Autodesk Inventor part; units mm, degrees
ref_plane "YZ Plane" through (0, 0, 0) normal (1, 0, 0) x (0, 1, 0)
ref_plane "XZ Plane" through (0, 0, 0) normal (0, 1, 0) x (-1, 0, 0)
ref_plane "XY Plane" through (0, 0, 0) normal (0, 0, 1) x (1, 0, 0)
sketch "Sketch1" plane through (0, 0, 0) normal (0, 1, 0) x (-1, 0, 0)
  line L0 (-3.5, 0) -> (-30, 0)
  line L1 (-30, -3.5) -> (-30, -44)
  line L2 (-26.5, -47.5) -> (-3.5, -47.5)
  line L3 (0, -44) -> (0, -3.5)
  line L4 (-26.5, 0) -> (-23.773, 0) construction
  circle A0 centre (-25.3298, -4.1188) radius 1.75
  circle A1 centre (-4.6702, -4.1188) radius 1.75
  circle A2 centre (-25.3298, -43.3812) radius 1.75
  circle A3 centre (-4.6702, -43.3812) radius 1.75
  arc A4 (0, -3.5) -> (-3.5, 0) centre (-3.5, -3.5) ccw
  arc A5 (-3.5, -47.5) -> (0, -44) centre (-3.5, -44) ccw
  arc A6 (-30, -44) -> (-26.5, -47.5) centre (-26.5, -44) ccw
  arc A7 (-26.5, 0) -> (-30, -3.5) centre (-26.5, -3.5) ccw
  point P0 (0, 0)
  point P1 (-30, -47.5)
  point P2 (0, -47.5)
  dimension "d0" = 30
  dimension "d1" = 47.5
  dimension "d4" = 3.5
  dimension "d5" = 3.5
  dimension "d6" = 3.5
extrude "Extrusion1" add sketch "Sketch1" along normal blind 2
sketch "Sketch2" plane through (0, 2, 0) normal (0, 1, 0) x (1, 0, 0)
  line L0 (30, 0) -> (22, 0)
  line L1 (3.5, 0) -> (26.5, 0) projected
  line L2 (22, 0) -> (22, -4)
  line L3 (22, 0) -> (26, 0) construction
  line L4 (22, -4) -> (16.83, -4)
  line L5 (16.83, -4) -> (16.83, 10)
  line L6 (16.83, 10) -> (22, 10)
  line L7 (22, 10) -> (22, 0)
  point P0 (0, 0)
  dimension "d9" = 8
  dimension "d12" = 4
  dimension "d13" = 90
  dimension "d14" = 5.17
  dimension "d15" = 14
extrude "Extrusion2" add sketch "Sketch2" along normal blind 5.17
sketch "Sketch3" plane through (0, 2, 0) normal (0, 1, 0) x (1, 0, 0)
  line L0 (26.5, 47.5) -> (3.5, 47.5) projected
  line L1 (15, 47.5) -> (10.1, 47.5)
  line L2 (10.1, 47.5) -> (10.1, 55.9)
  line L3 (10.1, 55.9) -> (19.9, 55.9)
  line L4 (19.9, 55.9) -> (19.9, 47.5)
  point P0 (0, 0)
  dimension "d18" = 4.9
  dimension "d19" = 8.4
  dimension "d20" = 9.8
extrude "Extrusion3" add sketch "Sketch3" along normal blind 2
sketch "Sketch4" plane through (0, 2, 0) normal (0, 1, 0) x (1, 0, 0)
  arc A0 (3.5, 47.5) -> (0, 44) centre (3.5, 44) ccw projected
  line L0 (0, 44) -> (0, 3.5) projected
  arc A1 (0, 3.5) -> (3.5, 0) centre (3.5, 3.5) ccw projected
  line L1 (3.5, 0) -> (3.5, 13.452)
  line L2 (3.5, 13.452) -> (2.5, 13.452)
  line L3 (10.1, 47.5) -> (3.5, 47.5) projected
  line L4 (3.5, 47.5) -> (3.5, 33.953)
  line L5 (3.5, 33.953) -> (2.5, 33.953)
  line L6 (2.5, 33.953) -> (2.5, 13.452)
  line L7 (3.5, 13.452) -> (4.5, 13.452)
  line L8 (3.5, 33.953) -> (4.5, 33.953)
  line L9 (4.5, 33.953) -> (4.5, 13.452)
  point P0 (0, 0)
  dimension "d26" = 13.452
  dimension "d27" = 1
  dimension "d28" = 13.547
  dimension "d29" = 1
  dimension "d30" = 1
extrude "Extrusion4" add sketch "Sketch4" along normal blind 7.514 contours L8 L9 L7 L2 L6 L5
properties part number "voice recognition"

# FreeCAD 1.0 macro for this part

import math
import FreeCAD as App
import Part
import Sketcher

V = App.Vector

doc = App.newDocument("Part")
body = doc.addObject("PartDesign::Body", "Body")
body.AllowCompound = True

# Sketch on XZ plane
sketch1 = body.newObject("Sketcher::SketchObject", "Sketch")
sketch1.AttachmentSupport = (doc.getObject("XZ_Plane"), [""])
sketch1.MapMode = "FlatFace"
sketch1.addGeometry([
    Part.ArcOfCircle(Part.Circle(V(3.5, -3.5, 0), V(0, 0, 1), 3.5), math.radians(90), math.radians(180)),  # 0
    Part.LineSegment(V(3.5, 0, 0), V(26.5, 0, 0)),  # 1
    Part.ArcOfCircle(Part.Circle(V(26.5, -3.5, 0), V(0, 0, 1), 3.5), math.radians(0), math.radians(90)),  # 2
    Part.LineSegment(V(30, -3.5, 0), V(30, -44, 0)),  # 3
    Part.ArcOfCircle(Part.Circle(V(26.5, -44, 0), V(0, 0, 1), 3.5), math.radians(-90), math.radians(0)),  # 4
    Part.LineSegment(V(26.5, -47.5, 0), V(3.5, -47.5, 0)),  # 5
    Part.ArcOfCircle(Part.Circle(V(3.5, -44, 0), V(0, 0, 1), 3.5), math.radians(180), math.radians(270)),  # 6
    Part.LineSegment(V(0, -44, 0), V(0, -3.5, 0)),  # 7
    Part.Circle(V(25.3298, -43.3812, 0), V(0, 0, 1), 1.75),  # 8
    Part.Circle(V(4.6702, -43.3812, 0), V(0, 0, 1), 1.75),  # 9
    Part.Circle(V(25.3298, -4.1188, 0), V(0, 0, 1), 1.75),  # 10
    Part.Circle(V(4.6702, -4.1188, 0), V(0, 0, 1), 1.75),  # 11
], False)
sketch1.addConstraint([
    Sketcher.Constraint("Tangent", 0, 1, 1, 1),
    Sketcher.Constraint("Tangent", 1, 2, 2, 2),
    Sketcher.Constraint("Tangent", 2, 1, 3, 1),
    Sketcher.Constraint("Tangent", 3, 2, 4, 2),
    Sketcher.Constraint("Tangent", 4, 1, 5, 1),
    Sketcher.Constraint("Tangent", 5, 2, 6, 2),
    Sketcher.Constraint("Tangent", 6, 1, 7, 1),
    Sketcher.Constraint("Tangent", 7, 2, 0, 2),
    Sketcher.Constraint("Horizontal", 1),
    Sketcher.Constraint("Vertical", 3),
    Sketcher.Constraint("Horizontal", 5),
    Sketcher.Constraint("Vertical", 7),
    Sketcher.Constraint("Equal", 0, 2),
    Sketcher.Constraint("Equal", 2, 4),
    Sketcher.Constraint("Equal", 4, 6),
    Sketcher.Constraint("Equal", 8, 9),
    Sketcher.Constraint("Equal", 9, 10),
    Sketcher.Constraint("Equal", 10, 11),
    Sketcher.Constraint("PointOnObject", 0, 1, -1),
    Sketcher.Constraint("PointOnObject", 6, 1, -2),
    Sketcher.Constraint("Horizontal", 8, 3, 9, 3),
    Sketcher.Constraint("Horizontal", 10, 3, 11, 3),
    Sketcher.Constraint("Vertical", 8, 3, 10, 3),
    Sketcher.Constraint("Vertical", 9, 3, 11, 3),
    Sketcher.Constraint("Diameter", 8, 3.5),
    Sketcher.Constraint("Radius", 0, 3.5),
    Sketcher.Constraint("DistanceX", -1, 1, 2, 1, 30.0),
    Sketcher.Constraint("DistanceY", 4, 1, -1, 1, 47.5),
    Sketcher.Constraint("DistanceX", -1, 1, 8, 3, 25.3298),
    Sketcher.Constraint("DistanceY", 8, 3, -1, 1, 43.3812),
    Sketcher.Constraint("DistanceX", -1, 1, 9, 3, 4.6702),
    Sketcher.Constraint("DistanceY", 10, 3, -1, 1, 4.1188),
])
pad1 = body.newObject("PartDesign::Pad", "Pad")
pad1.Profile = sketch1
pad1.Length = 2
pad1.Reversed = True

# Sketch on XZ plane
sketch2 = body.newObject("Sketcher::SketchObject", "Sketch001")
sketch2.AttachmentSupport = (doc.getObject("XZ_Plane"), [""])
sketch2.MapMode = "FlatFace"
sketch2.AttachmentOffset = App.Placement(V(0, 0, -2), App.Rotation())
sketch2.addGeometry([
    Part.LineSegment(V(16.83, -10, 0), V(16.83, 4, 0)),
    Part.LineSegment(V(16.83, 4, 0), V(22, 4, 0)),
    Part.LineSegment(V(22, 4, 0), V(22, -10, 0)),
    Part.LineSegment(V(22, -10, 0), V(16.83, -10, 0)),
], False)
sketch2.addConstraint([
    Sketcher.Constraint("Coincident", 0, 2, 1, 1),
    Sketcher.Constraint("Coincident", 1, 2, 2, 1),
    Sketcher.Constraint("Coincident", 2, 2, 3, 1),
    Sketcher.Constraint("Coincident", 3, 2, 0, 1),
    Sketcher.Constraint("Vertical", 0),
    Sketcher.Constraint("Horizontal", 1),
    Sketcher.Constraint("Vertical", 2),
    Sketcher.Constraint("Horizontal", 3),
    Sketcher.Constraint("DistanceY", 0, 1, 0, 2, 14.0),
    Sketcher.Constraint("DistanceY", -1, 1, 0, 2, 4.0),
    Sketcher.Constraint("DistanceX", 1, 1, 1, 2, 5.17),
    Sketcher.Constraint("DistanceX", -1, 1, 1, 2, 22.0),
])
pad2 = body.newObject("PartDesign::Pad", "Pad001")
pad2.Profile = sketch2
pad2.Length = 5.17
pad2.Reversed = True

# Sketch on XZ plane
sketch3 = body.newObject("Sketcher::SketchObject", "Sketch002")
sketch3.AttachmentSupport = (doc.getObject("XZ_Plane"), [""])
sketch3.MapMode = "FlatFace"
sketch3.AttachmentOffset = App.Placement(V(0, 0, -2), App.Rotation())
sketch3.addGeometry([
    Part.LineSegment(V(10.1, -47.5, 0), V(19.9, -47.5, 0)),
    Part.LineSegment(V(19.9, -47.5, 0), V(19.9, -55.9, 0)),
    Part.LineSegment(V(19.9, -55.9, 0), V(10.1, -55.9, 0)),
    Part.LineSegment(V(10.1, -55.9, 0), V(10.1, -47.5, 0)),
], False)
sketch3.addConstraint([
    Sketcher.Constraint("Coincident", 0, 2, 1, 1),
    Sketcher.Constraint("Coincident", 1, 2, 2, 1),
    Sketcher.Constraint("Coincident", 2, 2, 3, 1),
    Sketcher.Constraint("Coincident", 3, 2, 0, 1),
    Sketcher.Constraint("Horizontal", 0),
    Sketcher.Constraint("Vertical", 1),
    Sketcher.Constraint("Horizontal", 2),
    Sketcher.Constraint("Vertical", 3),
    Sketcher.Constraint("DistanceX", 0, 1, 0, 2, 9.8),
    Sketcher.Constraint("DistanceY", 1, 2, 1, 1, 8.4),
    Sketcher.Constraint("DistanceX", -1, 1, 0, 2, 19.9),
    Sketcher.Constraint("DistanceY", 0, 2, -1, 1, 47.5),
])
pad3 = body.newObject("PartDesign::Pad", "Pad002")
pad3.Profile = sketch3
pad3.Length = 2
pad3.Reversed = True

# Sketch on XZ plane
sketch4 = body.newObject("Sketcher::SketchObject", "Sketch003")
sketch4.AttachmentSupport = (doc.getObject("XZ_Plane"), [""])
sketch4.MapMode = "FlatFace"
sketch4.AttachmentOffset = App.Placement(V(0, 0, -2), App.Rotation())
sketch4.addGeometry([
    Part.LineSegment(V(4.5, -33.953, 0), V(2.5, -33.953, 0)),
    Part.LineSegment(V(2.5, -33.953, 0), V(2.5, -13.452, 0)),
    Part.LineSegment(V(2.5, -13.452, 0), V(4.5, -13.452, 0)),
    Part.LineSegment(V(4.5, -13.452, 0), V(4.5, -33.953, 0)),
], False)
sketch4.addConstraint([
    Sketcher.Constraint("Coincident", 0, 2, 1, 1),
    Sketcher.Constraint("Coincident", 1, 2, 2, 1),
    Sketcher.Constraint("Coincident", 2, 2, 3, 1),
    Sketcher.Constraint("Coincident", 3, 2, 0, 1),
    Sketcher.Constraint("Horizontal", 0),
    Sketcher.Constraint("Vertical", 1),
    Sketcher.Constraint("Horizontal", 2),
    Sketcher.Constraint("Vertical", 3),
    Sketcher.Constraint("DistanceX", 0, 2, 0, 1, 2.0),
    Sketcher.Constraint("DistanceY", 1, 2, -1, 1, 13.452),
    Sketcher.Constraint("DistanceX", -1, 1, 0, 2, 2.5),
    Sketcher.Constraint("DistanceY", 1, 1, 1, 2, 20.501),
])
pad4 = body.newObject("PartDesign::Pad", "Pad003")
pad4.Profile = sketch4
pad4.Length = 7.514
pad4.Reversed = True

doc.recompute()
